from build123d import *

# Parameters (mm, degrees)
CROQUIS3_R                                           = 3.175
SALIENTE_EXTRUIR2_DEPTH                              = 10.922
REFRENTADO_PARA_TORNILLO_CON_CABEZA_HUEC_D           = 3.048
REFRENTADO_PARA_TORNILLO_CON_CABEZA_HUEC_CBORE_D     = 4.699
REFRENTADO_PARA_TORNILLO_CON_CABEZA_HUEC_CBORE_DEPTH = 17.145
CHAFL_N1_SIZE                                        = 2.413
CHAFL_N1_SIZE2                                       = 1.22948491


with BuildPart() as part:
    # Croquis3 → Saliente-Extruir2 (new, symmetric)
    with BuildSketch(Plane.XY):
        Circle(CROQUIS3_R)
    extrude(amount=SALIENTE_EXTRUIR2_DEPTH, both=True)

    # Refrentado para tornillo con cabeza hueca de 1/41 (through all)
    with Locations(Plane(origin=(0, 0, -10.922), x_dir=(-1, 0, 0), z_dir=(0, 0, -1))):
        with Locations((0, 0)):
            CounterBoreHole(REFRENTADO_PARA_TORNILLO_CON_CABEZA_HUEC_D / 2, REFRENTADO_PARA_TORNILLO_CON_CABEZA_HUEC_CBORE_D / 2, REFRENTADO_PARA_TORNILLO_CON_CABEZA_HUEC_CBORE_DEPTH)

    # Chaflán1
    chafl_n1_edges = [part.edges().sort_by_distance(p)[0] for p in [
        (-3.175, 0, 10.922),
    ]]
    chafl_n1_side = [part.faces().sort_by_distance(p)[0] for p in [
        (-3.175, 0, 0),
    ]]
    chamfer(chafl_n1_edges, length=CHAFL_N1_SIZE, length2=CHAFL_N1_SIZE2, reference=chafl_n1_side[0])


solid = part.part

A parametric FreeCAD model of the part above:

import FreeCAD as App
import Part
import Sketcher

V = App.Vector
Q = App.Units.Quantity


def edges_at(feature, points):
    """Names of the edges that pass closest to the given points."""
    edges = feature.Shape.Edges
    near = lambda p: min(range(len(edges)), key=lambda i: edges[i].distToShape(Part.Vertex(*p))[0])
    return sorted({f"Edge{near(p) + 1}" for p in points})

doc = App.newDocument("Part")
body = doc.addObject("PartDesign::Body", "Body")

# Sketch on XY plane
sketch1 = doc.addObject("Sketcher::SketchObject", "Sketch")
body.addObject(sketch1)
sketch1.AttachmentSupport = (doc.XY_Plane, [""])
sketch1.MapMode = "FlatFace"
sketch1.addGeometry(Part.Circle(V(0, 0, 0), V(0, 0, 1), 3.2), False)
sketch1.addConstraint(Sketcher.Constraint("Coincident", 0, 3, -1, 1))
sketch1.addConstraint(Sketcher.Constraint("Diameter", 0, Q("0.25 in")))
pad1 = doc.addObject("PartDesign::Pad", "Pad")
body.addObject(pad1)
pad1.Profile = sketch1
pad1.Length = Q("0.86 in")
pad1.Midplane = True

# Sketch on XY plane
sketch2 = doc.addObject("Sketcher::SketchObject", "Sketch001")
body.addObject(sketch2)
sketch2.AttachmentSupport = (doc.XY_Plane, [""])
sketch2.MapMode = "FlatFace"
sketch2.AttachmentOffset = App.Placement(V(0, 0, -0.43 * 25.4), App.Rotation())
sketch2.addGeometry(Part.Circle(V(0, 0, 0), V(0, 0, 1), 1.5), False)
sketch2.addConstraint(Sketcher.Constraint("Coincident", 0, 3, -1, 1))
sketch2.addConstraint(Sketcher.Constraint("Diameter", 0, Q("0.12 in")))
doc.recompute()
hole = doc.addObject("PartDesign::Hole", "Hole")
body.addObject(hole)
hole.Profile = sketch2
hole.ThreadType = "None"
hole.Diameter = Q("0.12 in")
hole.DepthType = "ThroughAll"
hole.HoleCutType = "Counterbore"
hole.HoleCutDiameter = Q("0.185 in")
hole.HoleCutDepth = Q("0.675 in")
hole.Reversed = True
doc.recompute()

chamfer = doc.addObject("PartDesign::Chamfer", "Chamfer")
body.addObject(chamfer)
chamfer.Base = (hole, edges_at(hole, [(-3.175, 0, 10.922)]))
chamfer.ChamferType = "Two distances"
chamfer.Size = Q("0.095 in")
chamfer.Size2 = 1.229485

doc.recompute()
